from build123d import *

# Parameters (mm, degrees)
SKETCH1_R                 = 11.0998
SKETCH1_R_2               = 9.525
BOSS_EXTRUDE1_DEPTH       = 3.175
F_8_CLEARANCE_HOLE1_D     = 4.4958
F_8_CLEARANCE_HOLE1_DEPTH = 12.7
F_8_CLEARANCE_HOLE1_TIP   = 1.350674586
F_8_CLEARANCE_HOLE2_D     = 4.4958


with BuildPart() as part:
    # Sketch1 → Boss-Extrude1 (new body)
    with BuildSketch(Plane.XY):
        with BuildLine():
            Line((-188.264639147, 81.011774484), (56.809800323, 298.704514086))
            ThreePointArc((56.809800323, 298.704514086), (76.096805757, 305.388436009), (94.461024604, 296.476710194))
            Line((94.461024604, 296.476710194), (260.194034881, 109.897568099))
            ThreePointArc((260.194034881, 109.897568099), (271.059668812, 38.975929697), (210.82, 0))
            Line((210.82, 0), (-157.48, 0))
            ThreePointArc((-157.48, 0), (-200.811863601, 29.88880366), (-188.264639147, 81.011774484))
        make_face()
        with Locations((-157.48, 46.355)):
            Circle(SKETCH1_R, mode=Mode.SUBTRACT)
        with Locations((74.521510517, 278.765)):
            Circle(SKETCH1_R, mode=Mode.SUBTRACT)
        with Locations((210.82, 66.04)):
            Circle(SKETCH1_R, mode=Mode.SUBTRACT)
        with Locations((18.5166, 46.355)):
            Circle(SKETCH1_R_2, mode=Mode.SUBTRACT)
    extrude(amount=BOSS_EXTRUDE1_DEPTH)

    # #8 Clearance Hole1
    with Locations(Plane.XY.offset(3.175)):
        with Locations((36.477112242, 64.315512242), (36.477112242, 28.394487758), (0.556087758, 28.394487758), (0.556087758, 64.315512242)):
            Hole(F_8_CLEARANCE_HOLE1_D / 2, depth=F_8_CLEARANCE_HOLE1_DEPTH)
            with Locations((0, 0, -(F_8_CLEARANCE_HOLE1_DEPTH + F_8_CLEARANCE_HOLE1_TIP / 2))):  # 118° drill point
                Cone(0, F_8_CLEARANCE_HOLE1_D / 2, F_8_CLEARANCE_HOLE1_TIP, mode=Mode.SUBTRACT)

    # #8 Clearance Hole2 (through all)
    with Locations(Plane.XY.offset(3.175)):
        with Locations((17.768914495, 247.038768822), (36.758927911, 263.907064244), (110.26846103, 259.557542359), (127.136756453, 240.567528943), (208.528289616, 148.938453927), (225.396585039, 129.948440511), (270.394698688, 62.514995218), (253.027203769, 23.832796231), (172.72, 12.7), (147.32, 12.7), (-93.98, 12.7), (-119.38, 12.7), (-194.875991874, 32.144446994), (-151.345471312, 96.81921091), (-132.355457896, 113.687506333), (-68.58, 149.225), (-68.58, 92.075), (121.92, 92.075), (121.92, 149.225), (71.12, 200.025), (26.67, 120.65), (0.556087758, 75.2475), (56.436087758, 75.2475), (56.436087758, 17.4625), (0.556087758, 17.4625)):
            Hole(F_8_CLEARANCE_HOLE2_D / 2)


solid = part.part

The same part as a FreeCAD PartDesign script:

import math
import FreeCAD as App
import Part
import Sketcher
from FreeCAD import Vector
Q = App.Units.Quantity

doc = App.newDocument("Part")
body = doc.addObject("PartDesign::Body", "Body")

sketch1 = doc.addObject("Sketcher::SketchObject", "Sketch")
body.addObject(sketch1)
sketch1.AttachmentSupport = (doc.XY_Plane, [""])
sketch1.MapMode = "FlatFace"
sketch1.addGeometry([
    Part.LineSegment(Vector(57, 299, 0), Vector(-188, 81, 0)),
    Part.ArcOfCircle(Part.Circle(Vector(-157, 46, 0), Vector(0, 0, 1), 46), math.radians(132), math.radians(270)),
    Part.LineSegment(Vector(-157, 0, 0), Vector(211, 0, 0)),
    Part.ArcOfCircle(Part.Circle(Vector(211, 66, 0), Vector(0, 0, 1), 66), math.radians(-90), math.radians(42)),
    Part.LineSegment(Vector(260, 110, 0), Vector(94, 296, 0)),
    Part.ArcOfCircle(Part.Circle(Vector(75, 279, 0), Vector(0, 0, 1), 27), math.radians(42), math.radians(132)),
    Part.Circle(Vector(211, 66, 0), Vector(0, 0, 1), 11),
    Part.Circle(Vector(19, 46, 0), Vector(0, 0, 1), 10),
    Part.Circle(Vector(-157, 46, 0), Vector(0, 0, 1), 11),
    Part.Circle(Vector(75, 279, 0), Vector(0, 0, 1), 11),
], False)
sketch1.addConstraint([
    Sketcher.Constraint("Tangent", 0, 2, 1, 1),
    Sketcher.Constraint("Tangent", 1, 2, 2, 1),
    Sketcher.Constraint("Tangent", 2, 2, 3, 1),
    Sketcher.Constraint("Tangent", 3, 2, 4, 1),
    Sketcher.Constraint("Tangent", 4, 2, 5, 1),
    Sketcher.Constraint("Tangent", 5, 2, 0, 1),
    Sketcher.Constraint("Horizontal", 2),
    Sketcher.Constraint("Coincident", 6, 3, 3, 3),
    Sketcher.Constraint("Coincident", 8, 3, 1, 3),
    Sketcher.Constraint("Coincident", 9, 3, 5, 3),
    Sketcher.Constraint("Equal", 6, 8),
    Sketcher.Constraint("Equal", 8, 9),
    Sketcher.Constraint("PointOnObject", 1, 2, -1),
    Sketcher.Constraint("Perpendicular", 0, 4),
    Sketcher.Constraint("Horizontal", 1, 3, 7, 3),
    Sketcher.Constraint("Radius", 3, Q("2.6 in")),
    Sketcher.Constraint("Diameter", 7, Q("0.75 in")),
    Sketcher.Constraint("Radius", 5, Q("1.05 in")),
    Sketcher.Constraint("Diameter", 6, Q("0.874 in")),
    Sketcher.Constraint("DistanceX", 2, 1, 2, 2, Q("14.5 in")),
    Sketcher.Constraint("Radius", 1, Q("1.825 in")),
    Sketcher.Constraint("DistanceX", 1, 3, -1, 1, Q("6.2 in")),
    Sketcher.Constraint("DistanceY", 1, 3, 5, 3, Q("9.15 in")),
    Sketcher.Constraint("DistanceX", -1, 1, 7, 3, Q("0.729 in")),
])
pad1 = doc.addObject("PartDesign::Pad", "Pad")
body.addObject(pad1)
pad1.Profile = sketch1
pad1.Length = Q("0.125 in")

sketch2 = doc.addObject("Sketcher::SketchObject", "Sketch001")
body.addObject(sketch2)
sketch2.AttachmentSupport = (doc.XY_Plane, [""])
sketch2.MapMode = "FlatFace"
sketch2.AttachmentOffset = App.Placement(Vector(0, 0, 0.125 * 25.4), App.Rotation())
sketch2.addGeometry([
    Part.Circle(Vector(36.5, 64.3, 0), Vector(0, 0, 1), 2.2),
    Part.Circle(Vector(36.5, 28.4, 0), Vector(0, 0, 1), 2.2),
    Part.Circle(Vector(0.6, 28.4, 0), Vector(0, 0, 1), 2.2),
    Part.Circle(Vector(0.6, 64.3, 0), Vector(0, 0, 1), 2.2),
], False)
sketch2.addConstraint([
    Sketcher.Constraint("Equal", 0, 1),
    Sketcher.Constraint("Equal", 1, 2),
    Sketcher.Constraint("Equal", 2, 3),
    Sketcher.Constraint("Horizontal", 1, 3, 2, 3),
    Sketcher.Constraint("Horizontal", 0, 3, 3, 3),
    Sketcher.Constraint("Vertical", 0, 3, 1, 3),
    Sketcher.Constraint("Vertical", 2, 3, 3, 3),
    Sketcher.Constraint("Diameter", 0, Q("0.177 in")),
    Sketcher.Constraint("DistanceX", -1, 1, 0, 3, Q("36.477112 mm")),
    Sketcher.Constraint("DistanceY", -1, 1, 0, 3, Q("64.315512 mm")),
    Sketcher.Constraint("DistanceY", -1, 1, 1, 3, Q("28.394488 mm")),
    Sketcher.Constraint("DistanceX", -1, 1, 2, 3, Q("0.556088 mm")),
])
doc.recompute()
hole = doc.addObject("PartDesign::Hole", "Hole")
body.addObject(hole)
hole.Profile = sketch2
hole.ThreadType = "None"
hole.Diameter = Q("0.177 in")
hole.DepthType = "Dimension"
hole.Depth = Q("0.5 in")
hole.DrillPoint = "Angled"
hole.DrillPointAngle = 118

sketch3 = doc.addObject("Sketcher::SketchObject", "Sketch002")
body.addObject(sketch3)
sketch3.AttachmentSupport = (doc.XY_Plane, [""])
sketch3.MapMode = "FlatFace"
sketch3.AttachmentOffset = App.Placement(Vector(0, 0, 0.125 * 25.4), App.Rotation())
sketch3.addGeometry([
    Part.Circle(Vector(17.8, 247, 0), Vector(0, 0, 1), 2.2),
    Part.Circle(Vector(36.8, 263.9, 0), Vector(0, 0, 1), 2.2),
    Part.Circle(Vector(110.3, 259.6, 0), Vector(0, 0, 1), 2.2),
    Part.Circle(Vector(127.1, 240.6, 0), Vector(0, 0, 1), 2.2),
    Part.Circle(Vector(208.5, 148.9, 0), Vector(0, 0, 1), 2.2),
    Part.Circle(Vector(225.4, 129.9, 0), Vector(0, 0, 1), 2.2),
    Part.Circle(Vector(270.4, 62.5, 0), Vector(0, 0, 1), 2.2),
    Part.Circle(Vector(253, 23.8, 0), Vector(0, 0, 1), 2.2),
    Part.Circle(Vector(172.7, 12.7, 0), Vector(0, 0, 1), 2.2),
    Part.Circle(Vector(147.3, 12.7, 0), Vector(0, 0, 1), 2.2),
    Part.Circle(Vector(-94, 12.7, 0), Vector(0, 0, 1), 2.2),
    Part.Circle(Vector(-119.4, 12.7, 0), Vector(0, 0, 1), 2.2),
    Part.Circle(Vector(-194.9, 32.1, 0), Vector(0, 0, 1), 2.2),
    Part.Circle(Vector(-151.3, 96.8, 0), Vector(0, 0, 1), 2.2),
    Part.Circle(Vector(-132.4, 113.7, 0), Vector(0, 0, 1), 2.2),
    Part.Circle(Vector(-68.6, 149.2, 0), Vector(0, 0, 1), 2.2),
    Part.Circle(Vector(-68.6, 92.1, 0), Vector(0, 0, 1), 2.2),
    Part.Circle(Vector(121.9, 92.1, 0), Vector(0, 0, 1), 2.2),
    Part.Circle(Vector(121.9, 149.2, 0), Vector(0, 0, 1), 2.2),
    Part.Circle(Vector(71.1, 200, 0), Vector(0, 0, 1), 2.2),
    Part.Circle(Vector(26.7, 120.7, 0), Vector(0, 0, 1), 2.2),
    Part.Circle(Vector(0.6, 75.2, 0), Vector(0, 0, 1), 2.2),
    Part.Circle(Vector(56.4, 75.2, 0), Vector(0, 0, 1), 2.2),
    Part.Circle(Vector(56.4, 17.5, 0), Vector(0, 0, 1), 2.2),
    Part.Circle(Vector(0.6, 17.5, 0), Vector(0, 0, 1), 2.2),
], False)
sketch3.addConstraint([
    Sketcher.Constraint("Equal", 0, 1),
    Sketcher.Constraint("Equal", 1, 2),
    Sketcher.Constraint("Equal", 2, 3),
    Sketcher.Constraint("Equal", 3, 4),
    Sketcher.Constraint("Equal", 4, 5),
    Sketcher.Constraint("Equal", 5, 6),
    Sketcher.Constraint("Equal", 6, 7),
    Sketcher.Constraint("Equal", 7, 8),
    Sketcher.Constraint("Equal", 8, 9),
    Sketcher.Constraint("Equal", 9, 10),
    Sketcher.Constraint("Equal", 10, 11),
    Sketcher.Constraint("Equal", 11, 12),
    Sketcher.Constraint("Equal", 12, 13),
    Sketcher.Constraint("Equal", 13, 14),
    Sketcher.Constraint("Equal", 14, 15),
    Sketcher.Constraint("Equal", 15, 16),
    Sketcher.Constraint("Equal", 16, 17),
    Sketcher.Constraint("Equal", 17, 18),
    Sketcher.Constraint("Equal", 18, 19),
    Sketcher.Constraint("Equal", 19, 20),
    Sketcher.Constraint("Equal", 20, 21),
    Sketcher.Constraint("Equal", 21, 22),
    Sketcher.Constraint("Equal", 22, 23),
    Sketcher.Constraint("Equal", 23, 24),
    Sketcher.Constraint("Horizontal", 8, 3, 9, 3),
    Sketcher.Constraint("Horizontal", 9, 3, 10, 3),
    Sketcher.Constraint("Horizontal", 10, 3, 11, 3),
    Sketcher.Constraint("Horizontal", 16, 3, 17, 3),
    Sketcher.Constraint("Horizontal", 15, 3, 18, 3),
    Sketcher.Constraint("Horizontal", 21, 3, 22, 3),
    Sketcher.Constraint("Horizontal", 23, 3, 24, 3),
    Sketcher.Constraint("Vertical", 15, 3, 16, 3),
    Sketcher.Constraint("Vertical", 17, 3, 18, 3),
    Sketcher.Constraint("Vertical", 22, 3, 23, 3),
    Sketcher.Constraint("Vertical", 21, 3, 24, 3),
    Sketcher.Constraint("Diameter", 0, Q("0.177 in")),
    Sketcher.Constraint("DistanceX", 9, 3, 8, 3, Q("1 in")),
    Sketcher.Constraint("DistanceX", 11, 3, 10, 3, Q("1 in")),
    Sketcher.Constraint("DistanceX", 10, 3, 15, 3, Q("1 in")),
    Sketcher.Constraint("DistanceX", 17, 3, 9, 3, Q("1 in")),
    Sketcher.Constraint("DistanceX", 19, 3, 18, 3, Q("2 in")),
    Sketcher.Constraint("DistanceY", 18, 3, 19, 3, Q("2 in")),
    Sketcher.Constraint("DistanceX", -1, 1, 8, 3, Q("6.8 in")),
    Sketcher.Constraint("DistanceY", -1, 1, 8, 3, Q("0.5 in")),
    Sketcher.Constraint("DistanceX", 10, 3, -1, 1, Q("3.7 in")),
    Sketcher.Constraint("DistanceX", 21, 3, 22, 3, Q("2.2 in")),
    Sketcher.Constraint("DistanceX", -1, 1, 20, 3, Q("1.05 in")),
    Sketcher.Constraint("DistanceY", -1, 1, 20, 3, Q("4.75 in")),
    Sketcher.Constraint("DistanceY", 16, 3, 15, 3, Q("2.25 in")),
    Sketcher.Constraint("DistanceY", -1, 1, 15, 3, Q("5.875 in")),
    Sketcher.Constraint("DistanceY", -1, 1, 23, 3, Q("0.6875 in")),
    Sketcher.Constraint("DistanceY", 23, 3, 22, 3, Q("2.275 in")),
    Sketcher.Constraint("DistanceX", 12, 3, 13, 3, Q("1.7138 in")),
    Sketcher.Constraint("DistanceX", -1, 1, 6, 3, Q("270.394699 mm")),
    Sketcher.Constraint("DistanceY", 5, 3, 2, 3, Q("129.609102 mm")),
    Sketcher.Constraint("DistanceY", 7, 3, 6, 3, Q("38.682199 mm")),
    Sketcher.Constraint("DistanceX", 13, 3, 1, 3, Q("188.104399 mm")),
    Sketcher.Constraint("DistanceY", -1, 1, 0, 3, Q("247.038769 mm")),
    Sketcher.Constraint("DistanceX", -1, 1, 2, 3, Q("110.268461 mm")),
    Sketcher.Constraint("DistanceY", -1, 1, 3, 3, Q("240.567529 mm")),
    Sketcher.Constraint("DistanceX", -1, 1, 4, 3, Q("208.52829 mm")),
    Sketcher.Constraint("DistanceY", -1, 1, 5, 3, Q("129.948441 mm")),
    Sketcher.Constraint("DistanceX", 12, 3, -1, 1, Q("194.875992 mm")),
    Sketcher.Constraint("DistanceY", -1, 1, 13, 3, Q("96.819211 mm")),
    Sketcher.Constraint("DistanceY", 2, 3, 1, 3, Q("4.349522 mm")),
    Sketcher.Constraint("DistanceX", 1, 3, 3, 3, Q("90.377829 mm")),
    Sketcher.Constraint("DistanceX", 0, 3, 3, 3, Q("109.367842 mm")),
    Sketcher.Constraint("DistanceY", 4, 3, 2, 3, Q("110.619088 mm")),
    Sketcher.Constraint("DistanceX", 3, 3, 5, 3, Q("98.259829 mm")),
    Sketcher.Constraint("DistanceY", 6, 3, 4, 3, Q("86.423459 mm")),
    Sketcher.Constraint("DistanceX", 5, 3, 7, 3, Q("27.630619 mm")),
    Sketcher.Constraint("DistanceY", 12, 3, 0, 3, Q("214.894322 mm")),
    Sketcher.Constraint("DistanceY", 12, 3, 14, 3, Q("81.543059 mm")),
    Sketcher.Constraint("DistanceX", 14, 3, -1, 1, Q("132.355458 mm")),
    Sketcher.Constraint("DistanceX", -1, 1, 21, 3, Q("0.556088 mm")),
])
doc.recompute()
hole2 = doc.addObject("PartDesign::Hole", "Hole001")
body.addObject(hole2)
hole2.Profile = sketch3
hole2.ThreadType = "None"
hole2.Diameter = Q("0.177 in")
hole2.DepthType = "ThroughAll"

doc.recompute()
